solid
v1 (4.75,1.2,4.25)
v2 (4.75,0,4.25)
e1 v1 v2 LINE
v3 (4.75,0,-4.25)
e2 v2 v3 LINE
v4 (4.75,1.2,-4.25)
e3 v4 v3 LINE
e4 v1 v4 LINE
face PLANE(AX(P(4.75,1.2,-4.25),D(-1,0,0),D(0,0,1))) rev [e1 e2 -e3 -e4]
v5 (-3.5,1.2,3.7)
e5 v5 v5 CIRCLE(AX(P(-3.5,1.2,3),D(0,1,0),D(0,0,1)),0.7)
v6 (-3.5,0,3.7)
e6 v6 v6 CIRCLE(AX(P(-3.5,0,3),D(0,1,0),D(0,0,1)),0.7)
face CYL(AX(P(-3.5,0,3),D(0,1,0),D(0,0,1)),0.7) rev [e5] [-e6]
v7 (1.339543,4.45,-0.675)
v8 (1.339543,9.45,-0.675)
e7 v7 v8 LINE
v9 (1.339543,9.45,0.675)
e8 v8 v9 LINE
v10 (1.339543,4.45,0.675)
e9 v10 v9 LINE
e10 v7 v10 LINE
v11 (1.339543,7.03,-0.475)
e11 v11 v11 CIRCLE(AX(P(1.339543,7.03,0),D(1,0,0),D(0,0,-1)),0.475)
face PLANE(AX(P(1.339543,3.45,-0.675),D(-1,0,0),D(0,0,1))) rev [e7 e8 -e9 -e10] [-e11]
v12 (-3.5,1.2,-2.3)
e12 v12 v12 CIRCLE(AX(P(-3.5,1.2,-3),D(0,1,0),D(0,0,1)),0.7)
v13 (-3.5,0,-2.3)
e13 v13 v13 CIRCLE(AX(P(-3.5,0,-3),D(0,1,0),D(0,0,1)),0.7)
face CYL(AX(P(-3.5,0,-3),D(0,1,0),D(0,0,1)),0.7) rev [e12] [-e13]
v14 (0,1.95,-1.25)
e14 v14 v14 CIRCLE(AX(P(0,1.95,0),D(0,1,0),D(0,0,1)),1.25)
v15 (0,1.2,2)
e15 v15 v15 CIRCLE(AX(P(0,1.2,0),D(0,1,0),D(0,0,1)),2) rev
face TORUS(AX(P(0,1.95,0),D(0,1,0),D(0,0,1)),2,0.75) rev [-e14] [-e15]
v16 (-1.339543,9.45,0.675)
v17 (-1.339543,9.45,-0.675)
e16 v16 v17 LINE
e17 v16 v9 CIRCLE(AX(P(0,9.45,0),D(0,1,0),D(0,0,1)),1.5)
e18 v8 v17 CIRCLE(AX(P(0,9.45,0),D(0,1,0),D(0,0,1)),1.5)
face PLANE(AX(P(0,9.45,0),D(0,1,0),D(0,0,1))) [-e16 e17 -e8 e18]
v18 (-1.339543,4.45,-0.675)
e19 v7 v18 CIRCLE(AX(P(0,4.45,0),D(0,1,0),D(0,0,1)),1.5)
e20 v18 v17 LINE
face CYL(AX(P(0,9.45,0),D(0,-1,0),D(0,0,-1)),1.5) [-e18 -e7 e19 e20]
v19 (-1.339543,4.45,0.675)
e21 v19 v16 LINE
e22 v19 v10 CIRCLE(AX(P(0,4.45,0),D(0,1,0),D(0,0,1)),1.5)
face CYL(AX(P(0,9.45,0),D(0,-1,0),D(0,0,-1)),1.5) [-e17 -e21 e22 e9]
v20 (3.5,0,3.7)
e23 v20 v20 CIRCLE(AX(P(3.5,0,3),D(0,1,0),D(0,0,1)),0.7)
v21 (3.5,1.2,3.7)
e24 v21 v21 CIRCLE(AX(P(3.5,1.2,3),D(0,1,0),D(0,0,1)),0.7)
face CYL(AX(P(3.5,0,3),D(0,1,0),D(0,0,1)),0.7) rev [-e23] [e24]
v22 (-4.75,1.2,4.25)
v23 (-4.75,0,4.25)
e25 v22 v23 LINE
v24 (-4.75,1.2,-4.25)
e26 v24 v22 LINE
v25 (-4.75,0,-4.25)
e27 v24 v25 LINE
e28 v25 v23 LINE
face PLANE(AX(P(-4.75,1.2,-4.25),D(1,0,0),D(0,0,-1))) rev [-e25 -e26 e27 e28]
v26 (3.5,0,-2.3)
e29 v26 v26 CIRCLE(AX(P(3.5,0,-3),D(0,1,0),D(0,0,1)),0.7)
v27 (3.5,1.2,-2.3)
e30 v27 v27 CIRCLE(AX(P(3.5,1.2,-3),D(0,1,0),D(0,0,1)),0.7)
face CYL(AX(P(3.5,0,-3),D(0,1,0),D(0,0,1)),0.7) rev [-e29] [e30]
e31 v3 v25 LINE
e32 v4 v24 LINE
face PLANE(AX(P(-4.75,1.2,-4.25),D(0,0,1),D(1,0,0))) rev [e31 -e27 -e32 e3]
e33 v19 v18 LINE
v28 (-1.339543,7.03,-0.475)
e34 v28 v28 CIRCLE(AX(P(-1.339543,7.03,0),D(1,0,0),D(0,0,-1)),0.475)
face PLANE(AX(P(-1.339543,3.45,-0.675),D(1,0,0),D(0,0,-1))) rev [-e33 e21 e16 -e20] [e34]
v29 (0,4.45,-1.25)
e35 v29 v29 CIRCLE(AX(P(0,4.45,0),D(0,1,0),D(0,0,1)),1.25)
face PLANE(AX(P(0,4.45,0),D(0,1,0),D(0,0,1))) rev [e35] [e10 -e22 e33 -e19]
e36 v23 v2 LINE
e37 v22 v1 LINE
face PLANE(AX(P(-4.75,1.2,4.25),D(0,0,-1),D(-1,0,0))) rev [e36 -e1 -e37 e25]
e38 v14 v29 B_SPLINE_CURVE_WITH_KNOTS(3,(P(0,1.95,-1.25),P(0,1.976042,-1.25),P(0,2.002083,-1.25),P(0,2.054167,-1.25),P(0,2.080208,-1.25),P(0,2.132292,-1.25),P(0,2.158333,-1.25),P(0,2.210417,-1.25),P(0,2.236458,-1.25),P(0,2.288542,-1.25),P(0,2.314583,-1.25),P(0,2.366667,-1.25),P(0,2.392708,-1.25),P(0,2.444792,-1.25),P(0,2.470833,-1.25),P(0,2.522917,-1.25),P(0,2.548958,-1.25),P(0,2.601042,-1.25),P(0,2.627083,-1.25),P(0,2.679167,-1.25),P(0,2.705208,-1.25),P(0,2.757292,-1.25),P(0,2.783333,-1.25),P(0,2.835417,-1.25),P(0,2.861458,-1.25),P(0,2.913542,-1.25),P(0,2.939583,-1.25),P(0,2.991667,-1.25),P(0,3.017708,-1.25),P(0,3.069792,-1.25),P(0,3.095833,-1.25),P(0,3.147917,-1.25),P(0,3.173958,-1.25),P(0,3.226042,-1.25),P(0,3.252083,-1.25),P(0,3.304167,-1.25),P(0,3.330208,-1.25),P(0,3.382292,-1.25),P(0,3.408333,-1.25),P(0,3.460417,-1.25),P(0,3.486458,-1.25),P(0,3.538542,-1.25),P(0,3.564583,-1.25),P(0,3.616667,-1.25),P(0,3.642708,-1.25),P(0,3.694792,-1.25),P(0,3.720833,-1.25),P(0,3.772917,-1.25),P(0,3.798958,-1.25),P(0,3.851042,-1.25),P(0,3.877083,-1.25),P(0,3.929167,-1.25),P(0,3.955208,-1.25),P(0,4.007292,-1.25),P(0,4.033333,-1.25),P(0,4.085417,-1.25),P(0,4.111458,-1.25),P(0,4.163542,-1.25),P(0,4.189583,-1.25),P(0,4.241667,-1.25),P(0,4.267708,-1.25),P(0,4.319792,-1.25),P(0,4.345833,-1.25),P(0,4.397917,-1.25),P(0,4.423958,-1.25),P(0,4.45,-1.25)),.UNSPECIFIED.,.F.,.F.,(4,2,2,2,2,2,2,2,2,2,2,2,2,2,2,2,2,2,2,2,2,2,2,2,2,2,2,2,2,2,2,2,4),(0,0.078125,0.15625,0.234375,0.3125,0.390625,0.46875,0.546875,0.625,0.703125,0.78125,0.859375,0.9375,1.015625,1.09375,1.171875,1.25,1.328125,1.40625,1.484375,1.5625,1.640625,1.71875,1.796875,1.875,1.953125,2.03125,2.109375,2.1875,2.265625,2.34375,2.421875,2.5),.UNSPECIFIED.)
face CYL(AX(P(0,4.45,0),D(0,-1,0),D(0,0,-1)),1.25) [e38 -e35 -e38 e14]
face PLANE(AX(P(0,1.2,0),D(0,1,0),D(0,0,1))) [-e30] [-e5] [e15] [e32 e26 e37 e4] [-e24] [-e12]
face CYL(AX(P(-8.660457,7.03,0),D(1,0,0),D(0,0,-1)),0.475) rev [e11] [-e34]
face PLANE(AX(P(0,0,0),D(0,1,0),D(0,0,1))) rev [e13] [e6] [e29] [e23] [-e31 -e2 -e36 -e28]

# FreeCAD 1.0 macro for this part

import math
import FreeCAD as App
import Part
import Sketcher

V = App.Vector


def edges_at(feature, points):
    """Names of the edges that pass closest to the given points."""
    edges = feature.Shape.Edges
    near = lambda p: min(range(len(edges)), key=lambda i: edges[i].distToShape(Part.Vertex(*p))[0])
    return sorted({f"Edge{near(p) + 1}" for p in points})


def add_polygon(sketch, points):
    """Adds a closed chain of lines whose ends are joined by coincident constraints."""
    first, n = sketch.GeometryCount, len(points)
    for a, b in zip(points, points[1:] + points[:1]):
        sketch.addGeometry(Part.LineSegment(App.Vector(*a, 0), App.Vector(*b, 0)), False)
    for i in range(n):
        sketch.addConstraint(Sketcher.Constraint("Coincident", first + i, 2, first + (i + 1) % n, 1))

doc = App.newDocument("Part")
body = doc.addObject("PartDesign::Body", "Body")

# Sketch on XZ plane
sketch1 = doc.addObject("Sketcher::SketchObject", "Sketch")
body.addObject(sketch1)
sketch1.AttachmentSupport = (doc.XZ_Plane, [""])
sketch1.MapMode = "FlatFace"
add_polygon(sketch1, [(-5, -4), (-5, 4), (5, 4), (5, -4)])  # lines 0-3
sketch1.addConstraint(Sketcher.Constraint("Vertical", 0))
sketch1.addConstraint(Sketcher.Constraint("Horizontal", 1))
sketch1.addConstraint(Sketcher.Constraint("Vertical", 2))
sketch1.addConstraint(Sketcher.Constraint("Horizontal", 3))
sketch1.addConstraint(Sketcher.Constraint("Symmetric", 0, 2, 2, 2, -1, 1))
sketch1.addConstraint(Sketcher.Constraint("DistanceX", 1, 1, 1, 2, 9.5))
sketch1.addConstraint(Sketcher.Constraint("DistanceY", 0, 1, 0, 2, 8.5))
pad1 = doc.addObject("PartDesign::Pad", "Pad")
body.addObject(pad1)
pad1.Profile = sketch1
pad1.Length = 1.2
pad1.Reversed = True

# Sketch on XZ plane
sketch2 = doc.addObject("Sketcher::SketchObject", "Sketch001")
body.addObject(sketch2)
sketch2.AttachmentSupport = (doc.XZ_Plane, [""])
sketch2.MapMode = "FlatFace"
sketch2.AttachmentOffset = App.Placement(V(0, 0, -1.2), App.Rotation())
sketch2.addGeometry(Part.Circle(V(-3.5, 3, 0), V(0, 0, 1), 0.7), False)
sketch2.addGeometry(Part.Circle(V(-3.5, -3, 0), V(0, 0, 1), 0.7), False)
sketch2.addGeometry(Part.Circle(V(3.5, -3, 0), V(0, 0, 1), 0.7), False)
sketch2.addGeometry(Part.Circle(V(3.5, 3, 0), V(0, 0, 1), 0.7), False)
sketch2.addConstraint(Sketcher.Constraint("Equal", 0, 1))
sketch2.addConstraint(Sketcher.Constraint("Equal", 1, 2))
sketch2.addConstraint(Sketcher.Constraint("Equal", 2, 3))
sketch2.addConstraint(Sketcher.Constraint("Symmetric", 0, 3, 2, 3, -1, 1))
sketch2.addConstraint(Sketcher.Constraint("Symmetric", 1, 3, 3, 3, -1, 1))
sketch2.addConstraint(Sketcher.Constraint("Symmetric", 1, 3, 2, 3, -2))
sketch2.addConstraint(Sketcher.Constraint("Diameter", 0, 1.4))
sketch2.addConstraint(Sketcher.Constraint("DistanceY", -1, 1, 0, 3, 3.0))
sketch2.addConstraint(Sketcher.Constraint("DistanceX", 1, 3, 2, 3, 7.0))
pocket1 = doc.addObject("PartDesign::Pocket", "Pocket")
body.addObject(pocket1)
pocket1.Profile = sketch2
pocket1.Type = "ThroughAll"
pocket1.Midplane = True

# Sketch on XZ plane
sketch3 = doc.addObject("Sketcher::SketchObject", "Sketch002")
body.addObject(sketch3)
sketch3.AttachmentSupport = (doc.XZ_Plane, [""])
sketch3.MapMode = "FlatFace"
sketch3.AttachmentOffset = App.Placement(V(0, 0, -1.2), App.Rotation())
sketch3.addGeometry(Part.Circle(V(0, 0, 0), V(0, 0, 1), 1.2), False)
sketch3.addConstraint(Sketcher.Constraint("Coincident", 0, 3, -1, 1))
sketch3.addConstraint(Sketcher.Constraint("Diameter", 0, 2.5))
pad2 = doc.addObject("PartDesign::Pad", "Pad001")
body.addObject(pad2)
pad2.Profile = sketch3
pad2.Length = 3.25
pad2.Reversed = True
doc.recompute()

fillet = doc.addObject("PartDesign::Fillet", "Fillet")
body.addObject(fillet)
fillet.Base = (pad2, edges_at(pad2, [(0, 1.2, 1.25)]))
fillet.Radius = 0.75

# Sketch on XZ plane
sketch4 = doc.addObject("Sketcher::SketchObject", "Sketch003")
body.addObject(sketch4)
sketch4.AttachmentSupport = (doc.XZ_Plane, [""])
sketch4.MapMode = "FlatFace"
sketch4.AttachmentOffset = App.Placement(V(0, 0, -4.45), App.Rotation())
sketch4.addGeometry(Part.Circle(V(0, 0, 0), V(0, 0, 1), 1.5), False)
sketch4.addConstraint(Sketcher.Constraint("Coincident", 0, 3, -1, 1))
sketch4.addConstraint(Sketcher.Constraint("Diameter", 0, 3.0))
pad3 = doc.addObject("PartDesign::Pad", "Pad002")
body.addObject(pad3)
pad3.Profile = sketch4
pad3.Length = 5
pad3.Reversed = True

# Sketch on XZ plane
sketch5 = doc.addObject("Sketcher::SketchObject", "Sketch004")
body.addObject(sketch5)
sketch5.AttachmentSupport = (doc.XZ_Plane, [""])
sketch5.MapMode = "FlatFace"
sketch5.AttachmentOffset = App.Placement(V(0, 0, -3.45), App.Rotation())
sketch5.addGeometry(Part.LineSegment(V(-1.3, 0.7, 0), V(-1.3, -0.7, 0)), False)
sketch5.addGeometry(Part.ArcOfCircle(Part.Circle(V(0, 0, 0), V(0, 0, 1), 1.5), math.radians(153), math.radians(207)), False)
sketch5.addGeometry(Part.LineSegment(V(1.3, -0.7, 0), V(1.3, 0.7, 0)), False)
sketch5.addGeometry(Part.ArcOfCircle(Part.Circle(V(0, 0, 0), V(0, 0, 1), 1.5), math.radians(-27), math.radians(27)), False)
sketch5.addConstraint(Sketcher.Constraint("Coincident", 0, 1, 1, 1))
sketch5.addConstraint(Sketcher.Constraint("Coincident", 1, 2, 0, 2))
sketch5.addConstraint(Sketcher.Constraint("Coincident", 2, 1, 3, 1))
sketch5.addConstraint(Sketcher.Constraint("Coincident", 3, 2, 2, 2))
sketch5.addConstraint(Sketcher.Constraint("Vertical", 0))
sketch5.addConstraint(Sketcher.Constraint("Vertical", 2))
sketch5.addConstraint(Sketcher.Constraint("Coincident", 1, 3, -1, 1))
sketch5.addConstraint(Sketcher.Constraint("Coincident", 3, 3, -1, 1))
sketch5.addConstraint(Sketcher.Constraint("Equal", 1, 3))
sketch5.addConstraint(Sketcher.Constraint("Horizontal", 1, 2, 2, 1))
sketch5.addConstraint(Sketcher.Constraint("Radius", 1, 1.5))
sketch5.addConstraint(Sketcher.Constraint("DistanceY", 0, 2, 0, 1, 1.35))
pocket2 = doc.addObject("PartDesign::Pocket", "Pocket001")
body.addObject(pocket2)
pocket2.Profile = sketch5
pocket2.Length = 6

# Sketch on YZ plane
sketch6 = doc.addObject("Sketcher::SketchObject", "Sketch005")
body.addObject(sketch6)
sketch6.AttachmentSupport = (doc.YZ_Plane, [""])
sketch6.MapMode = "FlatFace"
sketch6.AttachmentOffset = App.Placement(V(0, 0, 1.339543), App.Rotation())
sketch6.addGeometry(Part.Circle(V(7.03, 0, 0), V(0, 0, 1), 0.47), False)
sketch6.addConstraint(Sketcher.Constraint("PointOnObject", 0, 3, -1))
sketch6.addConstraint(Sketcher.Constraint("Diameter", 0, 0.95))
sketch6.addConstraint(Sketcher.Constraint("DistanceX", -1, 1, 0, 3, 7.03))
pocket3 = doc.addObject("PartDesign::Pocket", "Pocket002")
body.addObject(pocket3)
pocket3.Profile = sketch6
pocket3.Length = 10

doc.recompute()
